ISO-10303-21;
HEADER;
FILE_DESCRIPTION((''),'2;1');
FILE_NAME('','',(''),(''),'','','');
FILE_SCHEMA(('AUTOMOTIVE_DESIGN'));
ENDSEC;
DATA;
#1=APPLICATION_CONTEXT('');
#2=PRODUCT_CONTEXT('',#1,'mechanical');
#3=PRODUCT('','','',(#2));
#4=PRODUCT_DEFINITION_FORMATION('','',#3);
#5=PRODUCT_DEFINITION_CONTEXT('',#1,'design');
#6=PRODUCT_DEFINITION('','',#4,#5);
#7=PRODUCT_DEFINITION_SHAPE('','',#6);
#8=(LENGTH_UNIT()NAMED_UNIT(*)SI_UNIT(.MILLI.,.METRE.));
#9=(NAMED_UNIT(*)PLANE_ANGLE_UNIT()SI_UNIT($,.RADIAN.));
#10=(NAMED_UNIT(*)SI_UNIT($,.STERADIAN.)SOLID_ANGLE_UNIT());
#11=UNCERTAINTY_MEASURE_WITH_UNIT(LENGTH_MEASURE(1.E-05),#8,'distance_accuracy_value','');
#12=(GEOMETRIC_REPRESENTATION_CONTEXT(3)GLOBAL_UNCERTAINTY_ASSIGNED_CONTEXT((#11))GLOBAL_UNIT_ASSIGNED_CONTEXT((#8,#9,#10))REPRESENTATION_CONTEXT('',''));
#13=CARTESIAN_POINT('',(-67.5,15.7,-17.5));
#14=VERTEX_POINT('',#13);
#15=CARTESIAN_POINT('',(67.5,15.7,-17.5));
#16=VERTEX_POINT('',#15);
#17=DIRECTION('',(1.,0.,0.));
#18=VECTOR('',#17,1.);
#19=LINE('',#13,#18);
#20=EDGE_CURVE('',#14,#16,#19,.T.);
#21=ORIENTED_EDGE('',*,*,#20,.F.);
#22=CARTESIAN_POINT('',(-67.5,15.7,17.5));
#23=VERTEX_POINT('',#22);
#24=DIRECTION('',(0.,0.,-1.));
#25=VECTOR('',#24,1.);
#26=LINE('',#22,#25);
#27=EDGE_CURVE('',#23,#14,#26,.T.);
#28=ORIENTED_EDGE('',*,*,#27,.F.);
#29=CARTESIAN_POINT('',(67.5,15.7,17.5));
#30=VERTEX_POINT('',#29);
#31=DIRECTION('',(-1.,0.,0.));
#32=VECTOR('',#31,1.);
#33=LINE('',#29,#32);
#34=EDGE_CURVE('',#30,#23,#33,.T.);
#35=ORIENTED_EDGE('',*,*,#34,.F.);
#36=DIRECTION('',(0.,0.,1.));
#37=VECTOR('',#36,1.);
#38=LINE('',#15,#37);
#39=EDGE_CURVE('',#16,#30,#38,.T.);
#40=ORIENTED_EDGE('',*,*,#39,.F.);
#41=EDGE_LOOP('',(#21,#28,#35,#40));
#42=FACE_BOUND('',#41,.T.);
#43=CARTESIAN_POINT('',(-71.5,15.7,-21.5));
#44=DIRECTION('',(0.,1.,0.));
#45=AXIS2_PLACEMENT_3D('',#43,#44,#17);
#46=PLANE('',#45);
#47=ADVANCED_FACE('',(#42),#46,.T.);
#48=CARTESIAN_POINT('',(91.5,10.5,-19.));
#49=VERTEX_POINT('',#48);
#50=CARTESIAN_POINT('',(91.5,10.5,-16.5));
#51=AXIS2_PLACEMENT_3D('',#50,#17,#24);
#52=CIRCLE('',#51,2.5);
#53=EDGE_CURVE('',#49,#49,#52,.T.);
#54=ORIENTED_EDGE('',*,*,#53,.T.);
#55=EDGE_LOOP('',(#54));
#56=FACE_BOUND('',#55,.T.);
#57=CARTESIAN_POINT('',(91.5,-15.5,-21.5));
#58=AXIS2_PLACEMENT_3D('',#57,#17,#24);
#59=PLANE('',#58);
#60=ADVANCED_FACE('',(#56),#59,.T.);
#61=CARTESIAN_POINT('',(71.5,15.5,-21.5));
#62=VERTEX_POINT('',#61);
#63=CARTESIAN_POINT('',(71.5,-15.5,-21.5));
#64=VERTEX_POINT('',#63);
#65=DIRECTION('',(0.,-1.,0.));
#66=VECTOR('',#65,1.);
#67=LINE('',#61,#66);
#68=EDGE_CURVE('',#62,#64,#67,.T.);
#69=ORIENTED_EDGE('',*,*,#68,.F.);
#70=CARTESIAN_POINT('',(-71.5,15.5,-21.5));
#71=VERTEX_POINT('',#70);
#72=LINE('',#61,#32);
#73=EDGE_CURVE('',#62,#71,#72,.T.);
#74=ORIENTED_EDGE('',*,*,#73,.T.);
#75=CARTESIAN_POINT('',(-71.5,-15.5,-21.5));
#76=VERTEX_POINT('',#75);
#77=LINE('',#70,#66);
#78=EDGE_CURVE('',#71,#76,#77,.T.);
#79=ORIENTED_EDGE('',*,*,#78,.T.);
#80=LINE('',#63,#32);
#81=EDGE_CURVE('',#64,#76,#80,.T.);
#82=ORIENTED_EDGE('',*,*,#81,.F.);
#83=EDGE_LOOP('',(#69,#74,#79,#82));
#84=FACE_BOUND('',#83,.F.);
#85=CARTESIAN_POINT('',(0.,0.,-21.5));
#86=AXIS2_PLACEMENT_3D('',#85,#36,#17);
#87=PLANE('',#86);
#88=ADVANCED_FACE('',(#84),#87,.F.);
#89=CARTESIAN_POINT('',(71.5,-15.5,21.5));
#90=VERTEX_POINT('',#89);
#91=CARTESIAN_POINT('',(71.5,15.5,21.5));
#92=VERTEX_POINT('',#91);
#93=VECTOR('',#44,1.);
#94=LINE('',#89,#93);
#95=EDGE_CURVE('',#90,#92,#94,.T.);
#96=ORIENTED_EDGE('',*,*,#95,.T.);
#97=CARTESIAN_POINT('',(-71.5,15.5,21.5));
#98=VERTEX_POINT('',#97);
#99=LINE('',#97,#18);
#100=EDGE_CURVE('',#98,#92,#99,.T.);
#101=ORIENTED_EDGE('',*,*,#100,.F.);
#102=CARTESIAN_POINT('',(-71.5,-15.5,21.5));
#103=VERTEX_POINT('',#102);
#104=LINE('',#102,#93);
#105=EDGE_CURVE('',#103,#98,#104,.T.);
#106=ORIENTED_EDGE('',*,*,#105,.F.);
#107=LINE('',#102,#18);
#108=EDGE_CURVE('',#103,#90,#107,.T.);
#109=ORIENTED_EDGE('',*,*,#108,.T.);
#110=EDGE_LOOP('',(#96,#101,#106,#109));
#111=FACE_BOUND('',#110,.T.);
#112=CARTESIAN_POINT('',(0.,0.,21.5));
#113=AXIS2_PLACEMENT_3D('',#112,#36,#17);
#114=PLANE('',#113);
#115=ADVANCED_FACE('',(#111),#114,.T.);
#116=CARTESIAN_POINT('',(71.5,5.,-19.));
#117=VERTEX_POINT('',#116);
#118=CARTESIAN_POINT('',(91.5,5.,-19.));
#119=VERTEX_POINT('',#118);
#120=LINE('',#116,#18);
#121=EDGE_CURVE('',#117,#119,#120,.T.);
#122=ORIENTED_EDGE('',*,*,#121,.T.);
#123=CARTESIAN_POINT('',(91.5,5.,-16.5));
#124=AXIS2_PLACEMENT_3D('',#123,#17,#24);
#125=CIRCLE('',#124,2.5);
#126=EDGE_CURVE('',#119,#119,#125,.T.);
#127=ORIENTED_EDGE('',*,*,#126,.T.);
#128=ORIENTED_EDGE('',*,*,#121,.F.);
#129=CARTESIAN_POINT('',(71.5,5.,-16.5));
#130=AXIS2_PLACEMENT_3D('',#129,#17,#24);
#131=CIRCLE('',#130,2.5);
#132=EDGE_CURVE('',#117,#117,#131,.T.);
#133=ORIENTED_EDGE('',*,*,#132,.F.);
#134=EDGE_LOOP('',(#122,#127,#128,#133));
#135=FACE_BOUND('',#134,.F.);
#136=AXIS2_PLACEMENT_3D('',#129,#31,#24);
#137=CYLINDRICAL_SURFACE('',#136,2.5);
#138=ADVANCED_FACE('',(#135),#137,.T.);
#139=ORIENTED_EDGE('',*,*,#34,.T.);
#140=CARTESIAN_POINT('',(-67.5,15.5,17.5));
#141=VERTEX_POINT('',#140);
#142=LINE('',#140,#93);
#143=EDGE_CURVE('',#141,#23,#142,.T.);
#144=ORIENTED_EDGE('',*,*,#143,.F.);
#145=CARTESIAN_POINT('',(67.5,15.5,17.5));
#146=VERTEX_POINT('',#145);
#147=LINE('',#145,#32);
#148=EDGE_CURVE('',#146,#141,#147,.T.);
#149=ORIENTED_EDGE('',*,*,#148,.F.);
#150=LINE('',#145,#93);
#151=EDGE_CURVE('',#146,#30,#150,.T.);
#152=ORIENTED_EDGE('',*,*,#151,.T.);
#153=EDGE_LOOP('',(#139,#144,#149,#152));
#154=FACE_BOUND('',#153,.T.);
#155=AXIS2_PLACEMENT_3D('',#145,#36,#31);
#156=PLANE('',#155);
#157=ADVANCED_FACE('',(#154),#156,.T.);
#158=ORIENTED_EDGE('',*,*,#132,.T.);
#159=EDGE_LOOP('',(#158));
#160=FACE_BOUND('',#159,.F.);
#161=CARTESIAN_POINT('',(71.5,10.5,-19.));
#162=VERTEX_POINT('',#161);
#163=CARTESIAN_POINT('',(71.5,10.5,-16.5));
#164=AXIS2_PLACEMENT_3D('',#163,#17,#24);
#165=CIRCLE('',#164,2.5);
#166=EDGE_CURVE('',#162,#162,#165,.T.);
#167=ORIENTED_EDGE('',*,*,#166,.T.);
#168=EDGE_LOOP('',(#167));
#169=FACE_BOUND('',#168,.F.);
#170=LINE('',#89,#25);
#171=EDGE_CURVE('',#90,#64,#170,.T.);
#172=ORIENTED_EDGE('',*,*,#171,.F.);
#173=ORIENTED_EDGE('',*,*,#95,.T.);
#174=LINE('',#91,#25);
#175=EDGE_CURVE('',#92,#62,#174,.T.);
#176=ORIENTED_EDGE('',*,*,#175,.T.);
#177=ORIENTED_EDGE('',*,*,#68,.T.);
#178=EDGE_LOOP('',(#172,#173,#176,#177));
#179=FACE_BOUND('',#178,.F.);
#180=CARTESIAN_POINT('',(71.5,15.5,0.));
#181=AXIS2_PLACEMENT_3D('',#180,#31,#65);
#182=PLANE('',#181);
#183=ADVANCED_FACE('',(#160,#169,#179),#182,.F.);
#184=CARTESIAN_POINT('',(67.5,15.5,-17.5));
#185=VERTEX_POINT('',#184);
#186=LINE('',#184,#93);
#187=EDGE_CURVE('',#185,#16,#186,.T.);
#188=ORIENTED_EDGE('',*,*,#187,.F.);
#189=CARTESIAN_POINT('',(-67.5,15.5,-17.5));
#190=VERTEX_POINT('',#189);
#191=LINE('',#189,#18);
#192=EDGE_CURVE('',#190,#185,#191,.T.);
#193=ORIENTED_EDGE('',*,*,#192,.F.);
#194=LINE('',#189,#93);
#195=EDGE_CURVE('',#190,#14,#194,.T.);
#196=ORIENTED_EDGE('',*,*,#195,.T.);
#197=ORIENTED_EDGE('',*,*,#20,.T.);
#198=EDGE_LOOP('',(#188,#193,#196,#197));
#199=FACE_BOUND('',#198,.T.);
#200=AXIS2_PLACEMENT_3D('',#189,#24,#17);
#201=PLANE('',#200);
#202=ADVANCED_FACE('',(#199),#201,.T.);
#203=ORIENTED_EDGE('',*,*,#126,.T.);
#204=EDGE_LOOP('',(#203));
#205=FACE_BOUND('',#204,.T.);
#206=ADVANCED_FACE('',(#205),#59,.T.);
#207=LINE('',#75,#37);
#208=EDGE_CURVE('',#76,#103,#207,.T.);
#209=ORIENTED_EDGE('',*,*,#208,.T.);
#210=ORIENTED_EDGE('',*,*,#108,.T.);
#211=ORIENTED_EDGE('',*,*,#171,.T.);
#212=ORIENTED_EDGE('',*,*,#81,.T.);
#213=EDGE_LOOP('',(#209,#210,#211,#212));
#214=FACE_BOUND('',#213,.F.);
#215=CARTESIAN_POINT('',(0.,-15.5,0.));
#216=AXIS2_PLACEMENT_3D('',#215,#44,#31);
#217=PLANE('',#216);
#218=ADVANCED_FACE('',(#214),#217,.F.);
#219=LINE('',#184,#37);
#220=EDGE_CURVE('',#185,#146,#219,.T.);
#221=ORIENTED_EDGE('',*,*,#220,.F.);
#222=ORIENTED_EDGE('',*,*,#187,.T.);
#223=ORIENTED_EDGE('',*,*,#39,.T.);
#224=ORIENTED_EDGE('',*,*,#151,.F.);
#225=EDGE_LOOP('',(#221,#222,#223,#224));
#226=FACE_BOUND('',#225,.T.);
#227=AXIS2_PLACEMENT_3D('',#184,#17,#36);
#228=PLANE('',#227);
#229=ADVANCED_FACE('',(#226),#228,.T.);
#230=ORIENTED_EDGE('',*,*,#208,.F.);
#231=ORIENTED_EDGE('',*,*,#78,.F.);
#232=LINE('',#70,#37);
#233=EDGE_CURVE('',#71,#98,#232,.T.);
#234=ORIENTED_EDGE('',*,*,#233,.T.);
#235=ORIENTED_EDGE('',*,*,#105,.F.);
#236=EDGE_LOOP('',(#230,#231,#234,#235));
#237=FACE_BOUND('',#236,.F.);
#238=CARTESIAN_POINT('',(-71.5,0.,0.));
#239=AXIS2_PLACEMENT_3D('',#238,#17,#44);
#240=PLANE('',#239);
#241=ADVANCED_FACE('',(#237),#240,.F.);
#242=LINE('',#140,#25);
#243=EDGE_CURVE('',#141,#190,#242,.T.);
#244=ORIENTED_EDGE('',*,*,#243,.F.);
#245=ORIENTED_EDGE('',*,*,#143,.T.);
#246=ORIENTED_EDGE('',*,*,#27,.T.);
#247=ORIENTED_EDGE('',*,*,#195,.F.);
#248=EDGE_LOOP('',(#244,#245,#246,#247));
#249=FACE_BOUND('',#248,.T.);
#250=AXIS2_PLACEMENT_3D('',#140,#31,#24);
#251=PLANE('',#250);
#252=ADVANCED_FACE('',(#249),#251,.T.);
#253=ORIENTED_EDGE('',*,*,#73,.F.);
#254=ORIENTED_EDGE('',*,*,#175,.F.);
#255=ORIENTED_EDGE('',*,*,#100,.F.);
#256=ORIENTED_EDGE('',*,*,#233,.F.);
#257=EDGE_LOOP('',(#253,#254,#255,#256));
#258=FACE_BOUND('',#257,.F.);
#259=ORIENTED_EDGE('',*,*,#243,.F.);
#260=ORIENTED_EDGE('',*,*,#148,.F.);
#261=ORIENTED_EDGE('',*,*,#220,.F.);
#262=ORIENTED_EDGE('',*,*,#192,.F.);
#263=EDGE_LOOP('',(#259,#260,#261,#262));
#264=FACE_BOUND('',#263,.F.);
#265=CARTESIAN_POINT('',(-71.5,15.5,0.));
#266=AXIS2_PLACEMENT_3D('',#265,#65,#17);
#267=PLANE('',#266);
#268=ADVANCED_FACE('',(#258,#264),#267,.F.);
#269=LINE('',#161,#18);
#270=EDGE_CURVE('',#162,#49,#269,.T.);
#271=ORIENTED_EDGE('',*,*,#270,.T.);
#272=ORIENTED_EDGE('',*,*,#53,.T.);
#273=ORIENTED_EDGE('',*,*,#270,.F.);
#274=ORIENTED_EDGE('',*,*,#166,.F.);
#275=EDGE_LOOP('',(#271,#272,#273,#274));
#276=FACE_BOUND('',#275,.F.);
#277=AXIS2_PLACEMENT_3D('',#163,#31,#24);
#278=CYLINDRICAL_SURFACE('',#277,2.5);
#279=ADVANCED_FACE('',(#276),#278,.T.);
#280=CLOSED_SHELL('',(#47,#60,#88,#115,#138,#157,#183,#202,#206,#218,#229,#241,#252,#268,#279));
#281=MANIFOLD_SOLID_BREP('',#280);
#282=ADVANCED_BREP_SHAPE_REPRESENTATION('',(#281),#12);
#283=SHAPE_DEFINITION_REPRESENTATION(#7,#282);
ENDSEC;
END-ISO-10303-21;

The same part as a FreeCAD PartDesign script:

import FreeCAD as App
import Part
import Sketcher

V = App.Vector

doc = App.newDocument("Part")
body = doc.addObject("PartDesign::Body", "Body")

# Sketch on XY plane
sketch1 = body.newObject("Sketcher::SketchObject", "Sketch")
sketch1.AttachmentSupport = (doc.getObject("XY_Plane"), [""])
sketch1.MapMode = "FlatFace"
sketch1.addGeometry(Part.LineSegment(V(-72, 16, 0), V(-72, -16, 0)), False)
sketch1.addGeometry(Part.LineSegment(V(-72, -16, 0), V(72, -16, 0)), False)
sketch1.addGeometry(Part.LineSegment(V(72, -16, 0), V(72, 16, 0)), False)
sketch1.addGeometry(Part.LineSegment(V(72, 16, 0), V(-72, 16, 0)), False)
sketch1.addConstraint(Sketcher.Constraint("Coincident", 0, 2, 1, 1))
sketch1.addConstraint(Sketcher.Constraint("Coincident", 1, 2, 2, 1))
sketch1.addConstraint(Sketcher.Constraint("Coincident", 2, 2, 3, 1))
sketch1.addConstraint(Sketcher.Constraint("Coincident", 3, 2, 0, 1))
sketch1.addConstraint(Sketcher.Constraint("Vertical", 0))
sketch1.addConstraint(Sketcher.Constraint("Horizontal", 1))
sketch1.addConstraint(Sketcher.Constraint("Vertical", 2))
sketch1.addConstraint(Sketcher.Constraint("Horizontal", 3))
sketch1.addConstraint(Sketcher.Constraint("Symmetric", 0, 2, 2, 2, -1, 1))
sketch1.addConstraint(Sketcher.Constraint("DistanceX", 1, 1, 1, 2, 143.0))
sketch1.addConstraint(Sketcher.Constraint("DistanceY", 0, 2, 0, 1, 31.0))
pad1 = body.newObject("PartDesign::Pad", "Pad")
pad1.Profile = sketch1
pad1.Length = 43
pad1.Midplane = True

# Sketch on XZ plane
sketch2 = body.newObject("Sketcher::SketchObject", "Sketch001")
sketch2.AttachmentSupport = (doc.getObject("XZ_Plane"), [""])
sketch2.MapMode = "FlatFace"
sketch2.AttachmentOffset = App.Placement(V(0, 0, -15.5), App.Rotation())
sketch2.addGeometry(Part.LineSegment(V(68, -18, 0), V(-68, -18, 0)), False)
sketch2.addGeometry(Part.LineSegment(V(-68, -18, 0), V(-68, 18, 0)), False)
sketch2.addGeometry(Part.LineSegment(V(-68, 18, 0), V(68, 18, 0)), False)
sketch2.addGeometry(Part.LineSegment(V(68, 18, 0), V(68, -18, 0)), False)
sketch2.addConstraint(Sketcher.Constraint("Coincident", 0, 2, 1, 1))
sketch2.addConstraint(Sketcher.Constraint("Coincident", 1, 2, 2, 1))
sketch2.addConstraint(Sketcher.Constraint("Coincident", 2, 2, 3, 1))
sketch2.addConstraint(Sketcher.Constraint("Coincident", 3, 2, 0, 1))
sketch2.addConstraint(Sketcher.Constraint("Horizontal", 0))
sketch2.addConstraint(Sketcher.Constraint("Vertical", 1))
sketch2.addConstraint(Sketcher.Constraint("Horizontal", 2))
sketch2.addConstraint(Sketcher.Constraint("Vertical", 3))
sketch2.addConstraint(Sketcher.Constraint("Symmetric", 0, 2, 2, 2, -1, 1))
sketch2.addConstraint(Sketcher.Constraint("DistanceX", 0, 2, 0, 1, 135.0))
sketch2.addConstraint(Sketcher.Constraint("DistanceY", 1, 1, 1, 2, 35.0))
pad2 = body.newObject("PartDesign::Pad", "Pad001")
pad2.Profile = sketch2
pad2.Length = 0.2
pad2.Reversed = True

# Sketch on YZ plane
sketch3 = body.newObject("Sketcher::SketchObject", "Sketch002")
sketch3.AttachmentSupport = (doc.getObject("YZ_Plane"), [""])
sketch3.MapMode = "FlatFace"
sketch3.AttachmentOffset = App.Placement(V(0, 0, 71.5), App.Rotation())
sketch3.addGeometry(Part.Circle(V(10.5, -16.5, 0), V(0, 0, 1), 2.5), False)
sketch3.addGeometry(Part.Circle(V(5, -16.5, 0), V(0, 0, 1), 2.5), False)
sketch3.addConstraint(Sketcher.Constraint("Equal", 0, 1))
sketch3.addConstraint(Sketcher.Constraint("Horizontal", 0, 3, 1, 3))
sketch3.addConstraint(Sketcher.Constraint("Diameter", 0, 5.0))
sketch3.addConstraint(Sketcher.Constraint("DistanceX", -1, 1, 1, 3, 5.0))
sketch3.addConstraint(Sketcher.Constraint("DistanceX", 1, 3, 0, 3, 5.5))
sketch3.addConstraint(Sketcher.Constraint("DistanceY", 0, 3, -1, 1, 16.5))
pad3 = body.newObject("PartDesign::Pad", "Pad002")
pad3.Profile = sketch3
pad3.Length = 20

doc.recompute()
